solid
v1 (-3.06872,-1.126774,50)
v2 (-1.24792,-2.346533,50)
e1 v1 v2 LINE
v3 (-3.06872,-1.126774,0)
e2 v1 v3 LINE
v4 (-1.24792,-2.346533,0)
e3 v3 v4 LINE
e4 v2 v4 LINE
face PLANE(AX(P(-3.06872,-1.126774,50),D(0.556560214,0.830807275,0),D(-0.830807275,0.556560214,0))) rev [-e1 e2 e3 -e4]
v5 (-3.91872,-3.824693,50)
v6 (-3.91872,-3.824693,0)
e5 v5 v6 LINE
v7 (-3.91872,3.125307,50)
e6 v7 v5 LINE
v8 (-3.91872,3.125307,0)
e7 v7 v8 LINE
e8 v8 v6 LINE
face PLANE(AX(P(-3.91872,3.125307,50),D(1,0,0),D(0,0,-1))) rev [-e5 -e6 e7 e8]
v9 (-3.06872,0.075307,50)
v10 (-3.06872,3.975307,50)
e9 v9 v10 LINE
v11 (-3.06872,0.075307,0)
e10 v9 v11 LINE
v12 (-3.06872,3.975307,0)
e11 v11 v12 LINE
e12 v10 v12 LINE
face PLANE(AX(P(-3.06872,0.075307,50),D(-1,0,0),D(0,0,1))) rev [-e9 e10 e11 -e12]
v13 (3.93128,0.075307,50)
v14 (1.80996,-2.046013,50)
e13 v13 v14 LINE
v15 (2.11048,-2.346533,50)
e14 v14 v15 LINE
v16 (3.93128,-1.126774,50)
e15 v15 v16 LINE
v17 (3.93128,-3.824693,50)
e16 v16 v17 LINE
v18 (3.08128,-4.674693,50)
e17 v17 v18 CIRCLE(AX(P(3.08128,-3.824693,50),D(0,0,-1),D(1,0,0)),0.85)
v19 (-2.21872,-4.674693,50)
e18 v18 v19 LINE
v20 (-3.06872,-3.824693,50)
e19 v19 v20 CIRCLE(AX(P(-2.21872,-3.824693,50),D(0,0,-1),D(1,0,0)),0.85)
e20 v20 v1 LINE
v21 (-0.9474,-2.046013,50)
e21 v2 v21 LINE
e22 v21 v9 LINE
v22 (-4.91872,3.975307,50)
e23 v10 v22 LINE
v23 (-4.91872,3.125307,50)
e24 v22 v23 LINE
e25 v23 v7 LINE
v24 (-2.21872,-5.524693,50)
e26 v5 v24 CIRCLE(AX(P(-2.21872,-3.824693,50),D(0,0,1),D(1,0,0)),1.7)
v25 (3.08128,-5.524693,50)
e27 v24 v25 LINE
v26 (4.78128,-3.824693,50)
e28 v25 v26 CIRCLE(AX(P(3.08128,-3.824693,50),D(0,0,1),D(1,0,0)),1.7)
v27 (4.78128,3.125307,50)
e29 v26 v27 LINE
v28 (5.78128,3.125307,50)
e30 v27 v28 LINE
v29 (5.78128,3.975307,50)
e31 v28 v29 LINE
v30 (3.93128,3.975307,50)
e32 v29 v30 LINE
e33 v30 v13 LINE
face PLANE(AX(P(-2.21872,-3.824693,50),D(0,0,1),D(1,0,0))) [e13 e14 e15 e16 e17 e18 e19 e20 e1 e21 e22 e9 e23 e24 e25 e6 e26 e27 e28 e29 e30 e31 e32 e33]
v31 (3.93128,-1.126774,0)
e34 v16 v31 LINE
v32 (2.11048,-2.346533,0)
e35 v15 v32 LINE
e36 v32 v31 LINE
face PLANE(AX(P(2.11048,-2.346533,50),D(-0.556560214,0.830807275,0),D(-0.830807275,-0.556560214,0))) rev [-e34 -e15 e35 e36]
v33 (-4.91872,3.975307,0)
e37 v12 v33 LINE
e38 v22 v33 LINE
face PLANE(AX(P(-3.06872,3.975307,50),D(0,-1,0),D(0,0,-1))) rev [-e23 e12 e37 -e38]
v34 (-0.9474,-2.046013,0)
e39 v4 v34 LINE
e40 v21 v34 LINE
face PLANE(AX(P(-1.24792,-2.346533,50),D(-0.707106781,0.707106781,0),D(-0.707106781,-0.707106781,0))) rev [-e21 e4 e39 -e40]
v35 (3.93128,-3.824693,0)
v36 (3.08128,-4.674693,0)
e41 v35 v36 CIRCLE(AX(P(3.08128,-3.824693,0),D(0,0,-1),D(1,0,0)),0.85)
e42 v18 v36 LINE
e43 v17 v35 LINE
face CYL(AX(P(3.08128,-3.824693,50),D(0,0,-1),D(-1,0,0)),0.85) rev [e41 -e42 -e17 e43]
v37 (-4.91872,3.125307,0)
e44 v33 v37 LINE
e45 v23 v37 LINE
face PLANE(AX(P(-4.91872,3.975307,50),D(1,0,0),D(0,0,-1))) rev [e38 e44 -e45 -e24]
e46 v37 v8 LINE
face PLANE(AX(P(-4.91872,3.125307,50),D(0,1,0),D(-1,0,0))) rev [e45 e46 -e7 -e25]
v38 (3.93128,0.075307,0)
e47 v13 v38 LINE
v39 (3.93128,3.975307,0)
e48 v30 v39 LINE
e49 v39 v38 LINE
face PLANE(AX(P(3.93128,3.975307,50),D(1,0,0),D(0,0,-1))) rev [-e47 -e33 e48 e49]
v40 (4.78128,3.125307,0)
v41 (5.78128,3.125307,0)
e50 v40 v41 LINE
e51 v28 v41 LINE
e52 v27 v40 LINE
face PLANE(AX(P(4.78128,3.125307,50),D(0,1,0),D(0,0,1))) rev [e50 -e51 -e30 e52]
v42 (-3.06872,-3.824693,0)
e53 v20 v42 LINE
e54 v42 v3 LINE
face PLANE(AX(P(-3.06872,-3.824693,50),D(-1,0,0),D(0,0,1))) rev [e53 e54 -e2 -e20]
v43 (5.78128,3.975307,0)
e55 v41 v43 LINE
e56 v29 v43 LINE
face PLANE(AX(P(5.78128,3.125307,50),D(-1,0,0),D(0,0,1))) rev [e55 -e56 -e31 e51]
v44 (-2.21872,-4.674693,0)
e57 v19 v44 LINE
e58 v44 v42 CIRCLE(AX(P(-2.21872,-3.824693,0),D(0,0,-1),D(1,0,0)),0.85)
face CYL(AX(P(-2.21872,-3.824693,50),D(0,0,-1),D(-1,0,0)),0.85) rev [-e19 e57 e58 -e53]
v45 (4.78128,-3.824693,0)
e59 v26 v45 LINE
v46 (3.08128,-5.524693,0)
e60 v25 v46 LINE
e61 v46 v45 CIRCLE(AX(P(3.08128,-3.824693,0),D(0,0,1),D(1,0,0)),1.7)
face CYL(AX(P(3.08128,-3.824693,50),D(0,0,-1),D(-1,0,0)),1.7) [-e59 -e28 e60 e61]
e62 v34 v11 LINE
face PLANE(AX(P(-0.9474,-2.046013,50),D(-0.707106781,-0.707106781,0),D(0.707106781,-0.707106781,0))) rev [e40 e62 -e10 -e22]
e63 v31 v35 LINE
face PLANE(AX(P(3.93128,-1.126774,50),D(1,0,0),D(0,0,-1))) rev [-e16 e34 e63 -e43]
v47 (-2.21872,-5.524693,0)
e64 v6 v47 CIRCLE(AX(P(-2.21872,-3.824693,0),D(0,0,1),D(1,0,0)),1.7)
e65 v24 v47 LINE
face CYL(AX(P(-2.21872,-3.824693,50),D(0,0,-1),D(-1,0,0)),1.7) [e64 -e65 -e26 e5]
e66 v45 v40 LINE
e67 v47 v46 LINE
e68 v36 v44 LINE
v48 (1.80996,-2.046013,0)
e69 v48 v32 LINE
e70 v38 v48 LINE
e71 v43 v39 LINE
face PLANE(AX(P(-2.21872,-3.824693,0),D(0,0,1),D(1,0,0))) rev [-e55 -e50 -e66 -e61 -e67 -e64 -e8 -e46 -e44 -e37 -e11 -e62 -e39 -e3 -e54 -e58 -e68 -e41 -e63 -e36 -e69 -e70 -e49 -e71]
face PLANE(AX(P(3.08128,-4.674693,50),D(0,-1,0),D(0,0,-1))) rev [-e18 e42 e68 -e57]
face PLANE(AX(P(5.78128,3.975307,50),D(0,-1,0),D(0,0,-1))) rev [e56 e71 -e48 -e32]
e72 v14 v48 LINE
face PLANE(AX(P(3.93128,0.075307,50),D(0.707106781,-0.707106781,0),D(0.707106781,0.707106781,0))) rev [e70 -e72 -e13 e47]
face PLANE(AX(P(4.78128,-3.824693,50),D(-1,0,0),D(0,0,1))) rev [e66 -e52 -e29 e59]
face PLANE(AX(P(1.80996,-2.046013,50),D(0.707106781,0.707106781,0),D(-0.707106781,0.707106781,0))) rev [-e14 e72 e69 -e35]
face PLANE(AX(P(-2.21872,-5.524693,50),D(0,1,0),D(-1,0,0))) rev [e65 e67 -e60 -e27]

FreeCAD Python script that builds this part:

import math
import FreeCAD as App
import Part
import Sketcher

V = App.Vector

doc = App.newDocument("Part")
params = doc.addObject("Spreadsheet::Sheet", "Params")
for row, (alias, value) in enumerate([
    ("sketch1_radius", "1.7 mm"),
    ("sketch1_width", "1 mm"),
    ("sketch1_radius2", "0.85 mm"),
    ("sketch1_length", "3 mm"),
    ("sketch1_width2", "5.3 mm"),
    ("pad1_length", "50 mm"),
], start=1):
    params.set(f"A{row}", alias)
    params.set(f"B{row}", "=" + value)
    params.setAlias(f"B{row}", alias)

body = doc.addObject("PartDesign::Body", "Body")

sketch1 = doc.addObject("Sketcher::SketchObject", "Sketch")
body.addObject(sketch1)
sketch1.AttachmentSupport = (doc.XY_Plane, [""])
sketch1.MapMode = "FlatFace"
sketch1.addGeometry([
    Part.LineSegment(V(-3.07, 0.08, 0), V(-3.07, 3.98, 0)),
    Part.LineSegment(V(-3.07, 3.98, 0), V(-4.92, 3.98, 0)),
    Part.LineSegment(V(-4.92, 3.98, 0), V(-4.92, 3.13, 0)),
    Part.LineSegment(V(-4.92, 3.13, 0), V(-3.92, 3.13, 0)),
    Part.LineSegment(V(-3.92, 3.13, 0), V(-3.92, -3.82, 0)),
    Part.ArcOfCircle(Part.Circle(V(-2.22, -3.82, 0), V(0, 0, 1), 1.7), math.radians(180), math.radians(270)),
    Part.LineSegment(V(-2.22, -5.52, 0), V(3.08, -5.52, 0)),
    Part.ArcOfCircle(Part.Circle(V(3.08, -3.82, 0), V(0, 0, 1), 1.7), math.radians(-90), math.radians(0)),
    Part.LineSegment(V(4.78, -3.82, 0), V(4.78, 3.13, 0)),
    Part.LineSegment(V(4.78, 3.13, 0), V(5.78, 3.13, 0)),
    Part.LineSegment(V(5.78, 3.13, 0), V(5.78, 3.98, 0)),
    Part.LineSegment(V(5.78, 3.98, 0), V(3.93, 3.98, 0)),
    Part.LineSegment(V(3.93, 3.98, 0), V(3.93, 0.08, 0)),
    Part.LineSegment(V(3.93, 0.08, 0), V(1.81, -2.05, 0)),
    Part.LineSegment(V(1.81, -2.05, 0), V(2.11, -2.35, 0)),
    Part.LineSegment(V(2.11, -2.35, 0), V(3.93, -1.13, 0)),
    Part.LineSegment(V(3.93, -1.13, 0), V(3.93, -3.82, 0)),
    Part.ArcOfCircle(Part.Circle(V(3.08, -3.82, 0), V(0, 0, 1), 0.85), math.radians(-90), math.radians(0)),
    Part.LineSegment(V(3.08, -4.67, 0), V(-2.22, -4.67, 0)),
    Part.ArcOfCircle(Part.Circle(V(-2.22, -3.82, 0), V(0, 0, 1), 0.85), math.radians(180), math.radians(270)),
    Part.LineSegment(V(-3.07, -3.82, 0), V(-3.07, -1.13, 0)),
    Part.LineSegment(V(-3.07, -1.13, 0), V(-1.25, -2.35, 0)),
    Part.LineSegment(V(-1.25, -2.35, 0), V(-0.95, -2.05, 0)),
    Part.LineSegment(V(-0.95, -2.05, 0), V(-3.07, 0.08, 0)),
], False)
sketch1.addConstraint([
    Sketcher.Constraint("Coincident", 0, 2, 1, 1),
    Sketcher.Constraint("Coincident", 1, 2, 2, 1),
    Sketcher.Constraint("Coincident", 2, 2, 3, 1),
    Sketcher.Constraint("Coincident", 3, 2, 4, 1),
    Sketcher.Constraint("Tangent", 4, 2, 5, 1),
    Sketcher.Constraint("Tangent", 5, 2, 6, 1),
    Sketcher.Constraint("Tangent", 6, 2, 7, 1),
    Sketcher.Constraint("Tangent", 7, 2, 8, 1),
    Sketcher.Constraint("Coincident", 8, 2, 9, 1),
    Sketcher.Constraint("Coincident", 9, 2, 10, 1),
    Sketcher.Constraint("Coincident", 10, 2, 11, 1),
    Sketcher.Constraint("Coincident", 11, 2, 12, 1),
    Sketcher.Constraint("Coincident", 12, 2, 13, 1),
    Sketcher.Constraint("Coincident", 13, 2, 14, 1),
    Sketcher.Constraint("Coincident", 14, 2, 15, 1),
    Sketcher.Constraint("Coincident", 15, 2, 16, 1),
    Sketcher.Constraint("Tangent", 16, 2, 17, 2),
    Sketcher.Constraint("Tangent", 17, 1, 18, 1),
    Sketcher.Constraint("Tangent", 18, 2, 19, 2),
    Sketcher.Constraint("Tangent", 19, 1, 20, 1),
    Sketcher.Constraint("Coincident", 20, 2, 21, 1),
    Sketcher.Constraint("Coincident", 21, 2, 22, 1),
    Sketcher.Constraint("Coincident", 22, 2, 23, 1),
    Sketcher.Constraint("Coincident", 23, 2, 0, 1),
    Sketcher.Constraint("Vertical", 0),
    Sketcher.Constraint("Horizontal", 1),
    Sketcher.Constraint("Vertical", 2),
    Sketcher.Constraint("Horizontal", 3),
    Sketcher.Constraint("Vertical", 4),
    Sketcher.Constraint("Horizontal", 6),
    Sketcher.Constraint("Vertical", 8),
    Sketcher.Constraint("Horizontal", 9),
    Sketcher.Constraint("Vertical", 10),
    Sketcher.Constraint("Horizontal", 11),
    Sketcher.Constraint("Vertical", 12),
    Sketcher.Constraint("Vertical", 16),
    Sketcher.Constraint("Horizontal", 18),
    Sketcher.Constraint("Vertical", 20),
    Sketcher.Constraint("Coincident", 17, 3, 7, 3),
    Sketcher.Constraint("Coincident", 19, 3, 5, 3),
    Sketcher.Constraint("Equal", 5, 7),
    Sketcher.Constraint("Perpendicular", 13, 14),
    Sketcher.Constraint("Perpendicular", 14, 22),
    Sketcher.Constraint("Perpendicular", 22, 23),
    Sketcher.Constraint("Horizontal", 3, 2, 8, 2),
    Sketcher.Constraint("Horizontal", 1, 2, 10, 2),
    Sketcher.Constraint("Horizontal", 15, 2, 20, 2),
    Sketcher.Constraint("Horizontal", 14, 2, 21, 2),
    Sketcher.Constraint("Horizontal", 13, 2, 22, 2),
    Sketcher.Constraint("Horizontal", 12, 2, 23, 2),
    Sketcher.Constraint("Vertical", 12, 2, 15, 2),
    Sketcher.Constraint("Vertical", 0, 2, 19, 1),
    Sketcher.Constraint("Equal", 3, 9),
    Sketcher.Constraint("Equal", 15, 21),
    Sketcher.Constraint("Radius", 5, 1.7),
    Sketcher.Constraint("DistanceX", 3, 1, 3, 2, 1.0),
    Sketcher.Constraint("Radius", 17, 0.85),
    Sketcher.Constraint("Distance", 13, 3.0),
    Sketcher.Constraint("DistanceX", 6, 1, 6, 2, 5.3),
    Sketcher.Constraint("DistanceY", 0, 1, 0, 2, 3.9),
    Sketcher.Constraint("DistanceY", 2, 2, 2, 1, 0.85),
    Sketcher.Constraint("DistanceY", 4, 2, 4, 1, 6.95),
    Sketcher.Constraint("Distance", 14, 0.425),
    Sketcher.Constraint("DistanceY", 16, 2, 16, 1, 2.697918),
    Sketcher.Constraint("DistanceX", 22, 2, -1, 1, 0.9474),
    Sketcher.Constraint("DistanceY", 5, 3, -1, 1, 3.824693),
])
sketch1.setExpression("Constraints[54]", "Params.sketch1_radius")
sketch1.setExpression("Constraints[55]", "Params.sketch1_width")
sketch1.setExpression("Constraints[56]", "Params.sketch1_radius2")
sketch1.setExpression("Constraints[57]", "Params.sketch1_length")
sketch1.setExpression("Constraints[58]", "Params.sketch1_width2")
pad1 = doc.addObject("PartDesign::Pad", "Pad")
body.addObject(pad1)
pad1.Profile = sketch1
pad1.setExpression("Length", "Params.pad1_length")

doc.recompute()
